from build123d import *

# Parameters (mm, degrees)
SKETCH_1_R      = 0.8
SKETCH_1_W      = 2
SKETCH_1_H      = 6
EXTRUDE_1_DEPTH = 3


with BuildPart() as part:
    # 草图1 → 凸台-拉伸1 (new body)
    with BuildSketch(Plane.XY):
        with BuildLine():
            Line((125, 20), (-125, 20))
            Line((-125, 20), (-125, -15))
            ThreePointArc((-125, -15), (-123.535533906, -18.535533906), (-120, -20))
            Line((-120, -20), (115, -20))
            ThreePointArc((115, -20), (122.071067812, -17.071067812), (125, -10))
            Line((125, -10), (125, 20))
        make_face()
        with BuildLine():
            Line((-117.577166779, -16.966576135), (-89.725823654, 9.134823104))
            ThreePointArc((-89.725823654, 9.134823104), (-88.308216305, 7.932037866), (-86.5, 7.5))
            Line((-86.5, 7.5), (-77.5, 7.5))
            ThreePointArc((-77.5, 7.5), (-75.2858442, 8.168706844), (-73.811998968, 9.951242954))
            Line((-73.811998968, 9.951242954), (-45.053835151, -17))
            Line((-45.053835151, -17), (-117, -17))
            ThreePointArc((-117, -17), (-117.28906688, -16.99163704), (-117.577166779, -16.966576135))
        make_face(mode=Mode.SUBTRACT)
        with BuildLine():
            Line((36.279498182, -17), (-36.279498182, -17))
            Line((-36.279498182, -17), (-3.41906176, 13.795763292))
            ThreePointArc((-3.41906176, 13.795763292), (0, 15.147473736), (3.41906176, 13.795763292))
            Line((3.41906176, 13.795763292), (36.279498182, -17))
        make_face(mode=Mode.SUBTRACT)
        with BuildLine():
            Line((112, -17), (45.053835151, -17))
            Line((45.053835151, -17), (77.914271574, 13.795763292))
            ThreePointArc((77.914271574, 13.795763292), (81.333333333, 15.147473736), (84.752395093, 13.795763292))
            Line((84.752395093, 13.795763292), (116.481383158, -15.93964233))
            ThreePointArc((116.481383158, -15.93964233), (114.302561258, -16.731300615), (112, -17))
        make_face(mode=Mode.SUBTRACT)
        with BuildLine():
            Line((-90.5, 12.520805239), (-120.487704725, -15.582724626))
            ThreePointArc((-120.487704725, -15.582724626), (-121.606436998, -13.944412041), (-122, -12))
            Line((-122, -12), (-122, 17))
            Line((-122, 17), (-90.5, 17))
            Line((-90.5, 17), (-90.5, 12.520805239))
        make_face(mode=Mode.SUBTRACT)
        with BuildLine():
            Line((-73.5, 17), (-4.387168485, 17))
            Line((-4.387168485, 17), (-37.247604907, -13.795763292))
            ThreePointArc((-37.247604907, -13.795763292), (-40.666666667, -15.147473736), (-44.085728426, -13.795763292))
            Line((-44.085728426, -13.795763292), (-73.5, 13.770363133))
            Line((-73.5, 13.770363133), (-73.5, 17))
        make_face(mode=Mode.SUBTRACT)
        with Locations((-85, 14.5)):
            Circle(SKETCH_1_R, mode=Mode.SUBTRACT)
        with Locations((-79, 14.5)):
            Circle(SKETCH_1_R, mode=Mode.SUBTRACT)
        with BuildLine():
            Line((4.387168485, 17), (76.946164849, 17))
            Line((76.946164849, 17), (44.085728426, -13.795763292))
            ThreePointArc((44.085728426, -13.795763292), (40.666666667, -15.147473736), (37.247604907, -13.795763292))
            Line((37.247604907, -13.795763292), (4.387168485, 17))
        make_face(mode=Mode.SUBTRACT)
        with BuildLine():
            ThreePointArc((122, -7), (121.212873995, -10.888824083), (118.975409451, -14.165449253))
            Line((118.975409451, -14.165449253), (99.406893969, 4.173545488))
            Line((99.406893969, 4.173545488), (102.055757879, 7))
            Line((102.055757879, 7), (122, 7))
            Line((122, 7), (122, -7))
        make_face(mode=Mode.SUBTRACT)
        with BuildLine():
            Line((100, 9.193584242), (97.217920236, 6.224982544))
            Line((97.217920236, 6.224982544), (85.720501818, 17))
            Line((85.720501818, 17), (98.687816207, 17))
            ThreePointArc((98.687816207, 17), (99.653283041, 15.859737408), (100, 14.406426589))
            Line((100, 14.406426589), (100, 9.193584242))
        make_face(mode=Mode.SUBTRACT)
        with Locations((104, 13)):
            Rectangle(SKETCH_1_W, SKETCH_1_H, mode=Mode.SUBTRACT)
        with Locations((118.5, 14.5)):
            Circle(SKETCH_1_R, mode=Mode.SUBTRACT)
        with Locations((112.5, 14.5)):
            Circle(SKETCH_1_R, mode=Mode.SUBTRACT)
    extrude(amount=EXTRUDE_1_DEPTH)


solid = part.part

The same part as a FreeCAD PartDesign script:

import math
import FreeCAD as App
import Part
import Sketcher
Q = App.Units.Quantity

doc = App.newDocument("Part")
body = doc.addObject("PartDesign::Body", "Body")

# Sketch on XY plane
sketch1 = body.newObject("Sketcher::SketchObject", "Sketch")
sketch1.AttachmentSupport = (doc.getObject("XY_Plane"), [""])
sketch1.MapMode = "FlatFace"
sketch1.addGeometry([
    Part.LineSegment(App.Vector(125, 20, 0), App.Vector(-125, 20, 0)),  # 0
    Part.LineSegment(App.Vector(-125, 20, 0), App.Vector(-125, -15, 0)),  # 1
    Part.ArcOfCircle(Part.Circle(App.Vector(-120, -15, 0), App.Vector(0, 0, 1), 5), math.radians(180), math.radians(270)),  # 2
    Part.LineSegment(App.Vector(-120, -20, 0), App.Vector(115, -20, 0)),  # 3
    Part.ArcOfCircle(Part.Circle(App.Vector(115, -10, 0), App.Vector(0, 0, 1), 10), math.radians(-90), math.radians(0)),  # 4
    Part.LineSegment(App.Vector(125, -10, 0), App.Vector(125, 20, 0)),  # 5
    Part.ArcOfCircle(Part.Circle(App.Vector(-117, -12, 0), App.Vector(0, 0, 1), 5), math.radians(-96.63), math.radians(-90)),  # 6
    Part.LineSegment(App.Vector(-117.6, -17, 0), App.Vector(-89.7, 9.1, 0)),  # 7
    Part.ArcOfCircle(Part.Circle(App.Vector(-86.5, 11.5, 0), App.Vector(0, 0, 1), 4), math.radians(-144), math.radians(-90)),  # 8
    Part.LineSegment(App.Vector(-86.5, 7.5, 0), App.Vector(-77.5, 7.5, 0)),  # 9
    Part.ArcOfCircle(Part.Circle(App.Vector(-77.5, 11.5, 0), App.Vector(0, 0, 1), 4), math.radians(-90), math.radians(-23)),  # 10
    Part.LineSegment(App.Vector(-73.8, 10, 0), App.Vector(-45.1, -17, 0)),  # 11
    Part.LineSegment(App.Vector(-45.1, -17, 0), App.Vector(-117, -17, 0)),  # 12
    Part.LineSegment(App.Vector(3.4, 13.8, 0), App.Vector(36.3, -17, 0)),  # 13
    Part.LineSegment(App.Vector(36.3, -17, 0), App.Vector(-36.3, -17, 0)),  # 14
    Part.LineSegment(App.Vector(-36.3, -17, 0), App.Vector(-3.4, 13.8, 0)),  # 15
    Part.ArcOfCircle(Part.Circle(App.Vector(0, 10.1, 0), App.Vector(0, 0, 1), 5), math.radians(47), math.radians(133)),  # 16
    Part.ArcOfCircle(Part.Circle(App.Vector(112, -7, 0), App.Vector(0, 0, 1), 10), math.radians(-90), math.radians(-63)),  # 17
    Part.LineSegment(App.Vector(112, -17, 0), App.Vector(45.1, -17, 0)),  # 18
    Part.LineSegment(App.Vector(45.1, -17, 0), App.Vector(77.9, 13.8, 0)),  # 19
    Part.ArcOfCircle(Part.Circle(App.Vector(81.3, 10.1, 0), App.Vector(0, 0, 1), 5), math.radians(47), math.radians(133)),  # 20
    Part.LineSegment(App.Vector(84.8, 13.8, 0), App.Vector(116.5, -15.9, 0)),  # 21
    Part.LineSegment(App.Vector(122, 7, 0), App.Vector(122, -7, 0)),  # 22
    Part.ArcOfCircle(Part.Circle(App.Vector(112, -7, 0), App.Vector(0, 0, 1), 10), math.radians(-46), math.radians(0)),  # 23
    Part.LineSegment(App.Vector(119, -14.2, 0), App.Vector(99.4, 4.2, 0)),  # 24
    Part.LineSegment(App.Vector(99.4, 4.2, 0), App.Vector(102.1, 7, 0)),  # 25
    Part.LineSegment(App.Vector(102.1, 7, 0), App.Vector(122, 7, 0)),  # 26
    Part.LineSegment(App.Vector(-90.5, 17, 0), App.Vector(-90.5, 12.5, 0)),  # 27
    Part.LineSegment(App.Vector(-90.5, 12.5, 0), App.Vector(-120.5, -15.6, 0)),  # 28
    Part.ArcOfCircle(Part.Circle(App.Vector(-117, -12, 0), App.Vector(0, 0, 1), 5), math.radians(180), math.radians(226)),  # 29
    Part.LineSegment(App.Vector(-122, -12, 0), App.Vector(-122, 17, 0)),  # 30
    Part.LineSegment(App.Vector(-122, 17, 0), App.Vector(-90.5, 17, 0)),  # 31
    Part.LineSegment(App.Vector(-73.5, 13.8, 0), App.Vector(-73.5, 17, 0)),  # 32
    Part.LineSegment(App.Vector(-73.5, 17, 0), App.Vector(-4.4, 17, 0)),  # 33
    Part.LineSegment(App.Vector(-4.4, 17, 0), App.Vector(-37.2, -13.8, 0)),  # 34
    Part.ArcOfCircle(Part.Circle(App.Vector(-40.7, -10.1, 0), App.Vector(0, 0, 1), 5), math.radians(-133), math.radians(-47)),  # 35
    Part.LineSegment(App.Vector(-44.1, -13.8, 0), App.Vector(-73.5, 13.8, 0)),  # 36
    Part.Circle(App.Vector(-85, 14.5, 0), App.Vector(0, 0, 1), 0.8),  # 37
    Part.Circle(App.Vector(-79, 14.5, 0), App.Vector(0, 0, 1), 0.8),  # 38
    Part.LineSegment(App.Vector(37.2, -13.8, 0), App.Vector(4.4, 17, 0)),  # 39
    Part.LineSegment(App.Vector(4.4, 17, 0), App.Vector(76.9, 17, 0)),  # 40
    Part.LineSegment(App.Vector(76.9, 17, 0), App.Vector(44.1, -13.8, 0)),  # 41
    Part.ArcOfCircle(Part.Circle(App.Vector(40.7, -10.1, 0), App.Vector(0, 0, 1), 5), math.radians(-133), math.radians(-47)),  # 42
    Part.LineSegment(App.Vector(100, 14.4, 0), App.Vector(100, 9.2, 0)),  # 43
    Part.LineSegment(App.Vector(100, 9.2, 0), App.Vector(97.2, 6.2, 0)),  # 44
    Part.LineSegment(App.Vector(97.2, 6.2, 0), App.Vector(85.7, 17, 0)),  # 45
    Part.LineSegment(App.Vector(85.7, 17, 0), App.Vector(98.7, 17, 0)),  # 46
    Part.ArcOfCircle(Part.Circle(App.Vector(96.8, 14.4, 0), App.Vector(0, 0, 1), 3.2), math.radians(0), math.radians(54)),  # 47
    Part.LineSegment(App.Vector(105, 10, 0), App.Vector(103, 10, 0)),  # 48
    Part.LineSegment(App.Vector(103, 10, 0), App.Vector(103, 16, 0)),  # 49
    Part.LineSegment(App.Vector(103, 16, 0), App.Vector(105, 16, 0)),  # 50
    Part.LineSegment(App.Vector(105, 16, 0), App.Vector(105, 10, 0)),  # 51
    Part.Circle(App.Vector(112.5, 14.5, 0), App.Vector(0, 0, 1), 0.8),  # 52
    Part.Circle(App.Vector(118.5, 14.5, 0), App.Vector(0, 0, 1), 0.8),  # 53
], False)
sketch1.addConstraint([
    Sketcher.Constraint("Coincident", 0, 2, 1, 1),
    Sketcher.Constraint("Tangent", 1, 2, 2, 1),
    Sketcher.Constraint("Tangent", 2, 2, 3, 1),
    Sketcher.Constraint("Tangent", 3, 2, 4, 1),
    Sketcher.Constraint("Tangent", 4, 2, 5, 1),
    Sketcher.Constraint("Coincident", 5, 2, 0, 1),
    Sketcher.Constraint("Coincident", 6, 1, 7, 1),
    Sketcher.Constraint("Coincident", 7, 2, 8, 1),
    Sketcher.Constraint("Tangent", 8, 2, 9, 1),
    Sketcher.Constraint("Tangent", 9, 2, 10, 1),
    Sketcher.Constraint("Coincident", 10, 2, 11, 1),
    Sketcher.Constraint("Coincident", 11, 2, 12, 1),
    Sketcher.Constraint("Tangent", 12, 2, 6, 2),
    Sketcher.Constraint("Coincident", 13, 2, 14, 1),
    Sketcher.Constraint("Coincident", 14, 2, 15, 1),
    Sketcher.Constraint("Tangent", 15, 2, 16, 2),
    Sketcher.Constraint("Tangent", 16, 1, 13, 1),
    Sketcher.Constraint("Tangent", 17, 1, 18, 1),
    Sketcher.Constraint("Coincident", 18, 2, 19, 1),
    Sketcher.Constraint("Tangent", 19, 2, 20, 2),
    Sketcher.Constraint("Tangent", 20, 1, 21, 1),
    Sketcher.Constraint("Coincident", 21, 2, 17, 2),
    Sketcher.Constraint("Tangent", 22, 2, 23, 2),
    Sketcher.Constraint("Coincident", 23, 1, 24, 1),
    Sketcher.Constraint("Coincident", 24, 2, 25, 1),
    Sketcher.Constraint("Coincident", 25, 2, 26, 1),
    Sketcher.Constraint("Coincident", 26, 2, 22, 1),
    Sketcher.Constraint("Coincident", 27, 2, 28, 1),
    Sketcher.Constraint("Coincident", 28, 2, 29, 2),
    Sketcher.Constraint("Tangent", 29, 1, 30, 1),
    Sketcher.Constraint("Coincident", 30, 2, 31, 1),
    Sketcher.Constraint("Coincident", 31, 2, 27, 1),
    Sketcher.Constraint("Coincident", 32, 2, 33, 1),
    Sketcher.Constraint("Coincident", 33, 2, 34, 1),
    Sketcher.Constraint("Tangent", 34, 2, 35, 2),
    Sketcher.Constraint("Tangent", 35, 1, 36, 1),
    Sketcher.Constraint("Coincident", 36, 2, 32, 1),
    Sketcher.Constraint("Coincident", 39, 2, 40, 1),
    Sketcher.Constraint("Coincident", 40, 2, 41, 1),
    Sketcher.Constraint("Tangent", 41, 2, 42, 2),
    Sketcher.Constraint("Tangent", 42, 1, 39, 1),
    Sketcher.Constraint("Coincident", 43, 2, 44, 1),
    Sketcher.Constraint("Coincident", 44, 2, 45, 1),
    Sketcher.Constraint("Coincident", 45, 2, 46, 1),
    Sketcher.Constraint("Coincident", 46, 2, 47, 2),
    Sketcher.Constraint("Tangent", 47, 1, 43, 1),
    Sketcher.Constraint("Coincident", 48, 2, 49, 1),
    Sketcher.Constraint("Coincident", 49, 2, 50, 1),
    Sketcher.Constraint("Coincident", 50, 2, 51, 1),
    Sketcher.Constraint("Coincident", 51, 2, 48, 1),
    Sketcher.Constraint("Horizontal", 0),
    Sketcher.Constraint("Vertical", 1),
    Sketcher.Constraint("Horizontal", 3),
    Sketcher.Constraint("Vertical", 5),
    Sketcher.Constraint("Horizontal", 9),
    Sketcher.Constraint("Horizontal", 12),
    Sketcher.Constraint("Horizontal", 14),
    Sketcher.Constraint("Horizontal", 18),
    Sketcher.Constraint("Vertical", 22),
    Sketcher.Constraint("Horizontal", 26),
    Sketcher.Constraint("Vertical", 27),
    Sketcher.Constraint("Vertical", 30),
    Sketcher.Constraint("Horizontal", 31),
    Sketcher.Constraint("Vertical", 32),
    Sketcher.Constraint("Horizontal", 33),
    Sketcher.Constraint("Horizontal", 40),
    Sketcher.Constraint("Vertical", 43),
    Sketcher.Constraint("Horizontal", 46),
    Sketcher.Constraint("Horizontal", 48),
    Sketcher.Constraint("Vertical", 49),
    Sketcher.Constraint("Horizontal", 50),
    Sketcher.Constraint("Vertical", 51),
    Sketcher.Constraint("Coincident", 23, 3, 17, 3),
    Sketcher.Constraint("Coincident", 29, 3, 6, 3),
    Sketcher.Constraint("Equal", 2, 6),
    Sketcher.Constraint("Equal", 8, 10),
    Sketcher.Constraint("Equal", 6, 16),
    Sketcher.Constraint("Equal", 4, 17),
    Sketcher.Constraint("Equal", 16, 20),
    Sketcher.Constraint("Equal", 17, 23),
    Sketcher.Constraint("Equal", 20, 29),
    Sketcher.Constraint("Equal", 29, 35),
    Sketcher.Constraint("Equal", 37, 38),
    Sketcher.Constraint("Equal", 35, 42),
    Sketcher.Constraint("Equal", 38, 52),
    Sketcher.Constraint("Equal", 52, 53),
    Sketcher.Constraint("Symmetric", 35, 3, 42, 3, -2),
    Sketcher.Constraint("Symmetric", 15, 2, 16, 1, -2),
    Sketcher.Constraint("Symmetric", 11, 2, 18, 2, -2),
    Sketcher.Constraint("Symmetric", 33, 2, 39, 2, -2),
    Sketcher.Constraint("Parallel", 11, 13),
    Sketcher.Constraint("Parallel", 7, 15),
    Sketcher.Constraint("Parallel", 15, 19),
    Sketcher.Constraint("Parallel", 13, 21),
    Sketcher.Constraint("Parallel", 21, 24),
    Sketcher.Constraint("Perpendicular", 24, 25),
    Sketcher.Constraint("Parallel", 19, 28),
    Sketcher.Constraint("Parallel", 28, 34),
    Sketcher.Constraint("Perpendicular", 25, 36),
    Sketcher.Constraint("Parallel", 34, 41),
    Sketcher.Constraint("Perpendicular", 39, 44),
    Sketcher.Constraint("Perpendicular", 44, 45),
    Sketcher.Constraint("Horizontal", 16, 3, 20, 3),
    Sketcher.Constraint("Horizontal", 37, 3, 38, 3),
    Sketcher.Constraint("Horizontal", 38, 3, 52, 3),
    Sketcher.Constraint("Horizontal", 52, 3, 53, 3),
    Sketcher.Constraint("Horizontal", 12, 2, 13, 2),
    Sketcher.Constraint("Horizontal", 31, 2, 32, 2),
    Sketcher.Constraint("Horizontal", 40, 2, 45, 2),
    Sketcher.Constraint("Equal", 14, 40),
    Sketcher.Constraint("Radius", 2, Q("5 mm")),
    Sketcher.Constraint("Radius", 4, Q("10 mm")),
    Sketcher.Constraint("Radius", 8, Q("4 mm")),
    Sketcher.Constraint("Diameter", 37, Q("1.6 mm")),
    Sketcher.Constraint("DistanceX", 0, 2, 0, 1, Q("250 mm")),
    Sketcher.Constraint("DistanceX", 9, 1, 9, 2, Q("9 mm")),
    Sketcher.Constraint("DistanceX", 48, 2, 48, 1, Q("2 mm")),
    Sketcher.Constraint("DistanceY", 1, 2, 1, 1, Q("35 mm")),
    Sketcher.Constraint("DistanceY", 22, 2, 22, 1, Q("14 mm")),
    Sketcher.Constraint("DistanceY", 30, 1, 30, 2, Q("29 mm")),
    Sketcher.Constraint("DistanceY", 49, 1, 49, 2, Q("6 mm")),
    Sketcher.Constraint("DistanceX", 31, 1, 31, 2, Q("31.5 mm")),
    Sketcher.Constraint("DistanceX", 2, 3, -1, 1, Q("120 mm")),
    Sketcher.Constraint("DistanceY", 2, 3, -1, 1, Q("15 mm")),
    Sketcher.Constraint("DistanceX", 6, 3, -1, 1, Q("117 mm")),
    Sketcher.Constraint("DistanceY", 6, 3, -1, 1, Q("12 mm")),
    Sketcher.Constraint("DistanceX", -1, 1, 17, 3, Q("112 mm")),
    Sketcher.Constraint("DistanceX", 37, 3, -1, 1, Q("85 mm")),
    Sketcher.Constraint("DistanceX", 38, 3, -1, 1, Q("79 mm")),
    Sketcher.Constraint("DistanceX", -1, 1, 43, 2, Q("100 mm")),
    Sketcher.Constraint("DistanceX", -1, 1, 48, 2, Q("103 mm")),
    Sketcher.Constraint("DistanceY", -1, 1, 48, 2, Q("10 mm")),
    Sketcher.Constraint("DistanceX", 8, 3, -1, 1, Q("86.5 mm")),
    Sketcher.Constraint("DistanceY", -1, 1, 8, 3, Q("11.5 mm")),
    Sketcher.Constraint("DistanceY", -1, 1, 37, 3, Q("14.5 mm")),
    Sketcher.Constraint("DistanceX", -1, 1, 52, 3, Q("112.5 mm")),
    Sketcher.Constraint("DistanceX", -1, 1, 53, 3, Q("118.5 mm")),
    Sketcher.Constraint("DistanceX", 32, 2, -1, 1, Q("73.5 mm")),
    Sketcher.Constraint("DistanceX", 10, 2, -1, 1, Q("73.811999 mm")),
    Sketcher.Constraint("Radius", 47, Q("3.219232 mm")),
    Sketcher.Constraint("Distance", 13, Q("45.035401 mm")),
    Sketcher.Constraint("DistanceX", 33, 1, 33, 2, Q("69.112832 mm")),
    Sketcher.Constraint("DistanceX", -1, 1, 13, 2, Q("36.279498 mm")),
    Sketcher.Constraint("DistanceX", -1, 1, 45, 2, Q("85.720502 mm")),
    Sketcher.Constraint("Distance", 25, Q("3.873671 mm")),
    Sketcher.Constraint("DistanceX", 26, 1, 26, 2, Q("19.944242 mm")),
    Sketcher.Constraint("DistanceX", 46, 1, 46, 2, Q("12.967314 mm")),
    Sketcher.Constraint("DistanceY", 27, 2, 27, 1, Q("4.479195 mm")),
    Sketcher.Constraint("DistanceY", 43, 2, 43, 1, Q("5.212842 mm")),
    Sketcher.Constraint("Distance", 7, Q("38.170412 mm")),
])
pad1 = body.newObject("PartDesign::Pad", "Pad")
pad1.Profile = sketch1
pad1.Length = 3

doc.recompute()
